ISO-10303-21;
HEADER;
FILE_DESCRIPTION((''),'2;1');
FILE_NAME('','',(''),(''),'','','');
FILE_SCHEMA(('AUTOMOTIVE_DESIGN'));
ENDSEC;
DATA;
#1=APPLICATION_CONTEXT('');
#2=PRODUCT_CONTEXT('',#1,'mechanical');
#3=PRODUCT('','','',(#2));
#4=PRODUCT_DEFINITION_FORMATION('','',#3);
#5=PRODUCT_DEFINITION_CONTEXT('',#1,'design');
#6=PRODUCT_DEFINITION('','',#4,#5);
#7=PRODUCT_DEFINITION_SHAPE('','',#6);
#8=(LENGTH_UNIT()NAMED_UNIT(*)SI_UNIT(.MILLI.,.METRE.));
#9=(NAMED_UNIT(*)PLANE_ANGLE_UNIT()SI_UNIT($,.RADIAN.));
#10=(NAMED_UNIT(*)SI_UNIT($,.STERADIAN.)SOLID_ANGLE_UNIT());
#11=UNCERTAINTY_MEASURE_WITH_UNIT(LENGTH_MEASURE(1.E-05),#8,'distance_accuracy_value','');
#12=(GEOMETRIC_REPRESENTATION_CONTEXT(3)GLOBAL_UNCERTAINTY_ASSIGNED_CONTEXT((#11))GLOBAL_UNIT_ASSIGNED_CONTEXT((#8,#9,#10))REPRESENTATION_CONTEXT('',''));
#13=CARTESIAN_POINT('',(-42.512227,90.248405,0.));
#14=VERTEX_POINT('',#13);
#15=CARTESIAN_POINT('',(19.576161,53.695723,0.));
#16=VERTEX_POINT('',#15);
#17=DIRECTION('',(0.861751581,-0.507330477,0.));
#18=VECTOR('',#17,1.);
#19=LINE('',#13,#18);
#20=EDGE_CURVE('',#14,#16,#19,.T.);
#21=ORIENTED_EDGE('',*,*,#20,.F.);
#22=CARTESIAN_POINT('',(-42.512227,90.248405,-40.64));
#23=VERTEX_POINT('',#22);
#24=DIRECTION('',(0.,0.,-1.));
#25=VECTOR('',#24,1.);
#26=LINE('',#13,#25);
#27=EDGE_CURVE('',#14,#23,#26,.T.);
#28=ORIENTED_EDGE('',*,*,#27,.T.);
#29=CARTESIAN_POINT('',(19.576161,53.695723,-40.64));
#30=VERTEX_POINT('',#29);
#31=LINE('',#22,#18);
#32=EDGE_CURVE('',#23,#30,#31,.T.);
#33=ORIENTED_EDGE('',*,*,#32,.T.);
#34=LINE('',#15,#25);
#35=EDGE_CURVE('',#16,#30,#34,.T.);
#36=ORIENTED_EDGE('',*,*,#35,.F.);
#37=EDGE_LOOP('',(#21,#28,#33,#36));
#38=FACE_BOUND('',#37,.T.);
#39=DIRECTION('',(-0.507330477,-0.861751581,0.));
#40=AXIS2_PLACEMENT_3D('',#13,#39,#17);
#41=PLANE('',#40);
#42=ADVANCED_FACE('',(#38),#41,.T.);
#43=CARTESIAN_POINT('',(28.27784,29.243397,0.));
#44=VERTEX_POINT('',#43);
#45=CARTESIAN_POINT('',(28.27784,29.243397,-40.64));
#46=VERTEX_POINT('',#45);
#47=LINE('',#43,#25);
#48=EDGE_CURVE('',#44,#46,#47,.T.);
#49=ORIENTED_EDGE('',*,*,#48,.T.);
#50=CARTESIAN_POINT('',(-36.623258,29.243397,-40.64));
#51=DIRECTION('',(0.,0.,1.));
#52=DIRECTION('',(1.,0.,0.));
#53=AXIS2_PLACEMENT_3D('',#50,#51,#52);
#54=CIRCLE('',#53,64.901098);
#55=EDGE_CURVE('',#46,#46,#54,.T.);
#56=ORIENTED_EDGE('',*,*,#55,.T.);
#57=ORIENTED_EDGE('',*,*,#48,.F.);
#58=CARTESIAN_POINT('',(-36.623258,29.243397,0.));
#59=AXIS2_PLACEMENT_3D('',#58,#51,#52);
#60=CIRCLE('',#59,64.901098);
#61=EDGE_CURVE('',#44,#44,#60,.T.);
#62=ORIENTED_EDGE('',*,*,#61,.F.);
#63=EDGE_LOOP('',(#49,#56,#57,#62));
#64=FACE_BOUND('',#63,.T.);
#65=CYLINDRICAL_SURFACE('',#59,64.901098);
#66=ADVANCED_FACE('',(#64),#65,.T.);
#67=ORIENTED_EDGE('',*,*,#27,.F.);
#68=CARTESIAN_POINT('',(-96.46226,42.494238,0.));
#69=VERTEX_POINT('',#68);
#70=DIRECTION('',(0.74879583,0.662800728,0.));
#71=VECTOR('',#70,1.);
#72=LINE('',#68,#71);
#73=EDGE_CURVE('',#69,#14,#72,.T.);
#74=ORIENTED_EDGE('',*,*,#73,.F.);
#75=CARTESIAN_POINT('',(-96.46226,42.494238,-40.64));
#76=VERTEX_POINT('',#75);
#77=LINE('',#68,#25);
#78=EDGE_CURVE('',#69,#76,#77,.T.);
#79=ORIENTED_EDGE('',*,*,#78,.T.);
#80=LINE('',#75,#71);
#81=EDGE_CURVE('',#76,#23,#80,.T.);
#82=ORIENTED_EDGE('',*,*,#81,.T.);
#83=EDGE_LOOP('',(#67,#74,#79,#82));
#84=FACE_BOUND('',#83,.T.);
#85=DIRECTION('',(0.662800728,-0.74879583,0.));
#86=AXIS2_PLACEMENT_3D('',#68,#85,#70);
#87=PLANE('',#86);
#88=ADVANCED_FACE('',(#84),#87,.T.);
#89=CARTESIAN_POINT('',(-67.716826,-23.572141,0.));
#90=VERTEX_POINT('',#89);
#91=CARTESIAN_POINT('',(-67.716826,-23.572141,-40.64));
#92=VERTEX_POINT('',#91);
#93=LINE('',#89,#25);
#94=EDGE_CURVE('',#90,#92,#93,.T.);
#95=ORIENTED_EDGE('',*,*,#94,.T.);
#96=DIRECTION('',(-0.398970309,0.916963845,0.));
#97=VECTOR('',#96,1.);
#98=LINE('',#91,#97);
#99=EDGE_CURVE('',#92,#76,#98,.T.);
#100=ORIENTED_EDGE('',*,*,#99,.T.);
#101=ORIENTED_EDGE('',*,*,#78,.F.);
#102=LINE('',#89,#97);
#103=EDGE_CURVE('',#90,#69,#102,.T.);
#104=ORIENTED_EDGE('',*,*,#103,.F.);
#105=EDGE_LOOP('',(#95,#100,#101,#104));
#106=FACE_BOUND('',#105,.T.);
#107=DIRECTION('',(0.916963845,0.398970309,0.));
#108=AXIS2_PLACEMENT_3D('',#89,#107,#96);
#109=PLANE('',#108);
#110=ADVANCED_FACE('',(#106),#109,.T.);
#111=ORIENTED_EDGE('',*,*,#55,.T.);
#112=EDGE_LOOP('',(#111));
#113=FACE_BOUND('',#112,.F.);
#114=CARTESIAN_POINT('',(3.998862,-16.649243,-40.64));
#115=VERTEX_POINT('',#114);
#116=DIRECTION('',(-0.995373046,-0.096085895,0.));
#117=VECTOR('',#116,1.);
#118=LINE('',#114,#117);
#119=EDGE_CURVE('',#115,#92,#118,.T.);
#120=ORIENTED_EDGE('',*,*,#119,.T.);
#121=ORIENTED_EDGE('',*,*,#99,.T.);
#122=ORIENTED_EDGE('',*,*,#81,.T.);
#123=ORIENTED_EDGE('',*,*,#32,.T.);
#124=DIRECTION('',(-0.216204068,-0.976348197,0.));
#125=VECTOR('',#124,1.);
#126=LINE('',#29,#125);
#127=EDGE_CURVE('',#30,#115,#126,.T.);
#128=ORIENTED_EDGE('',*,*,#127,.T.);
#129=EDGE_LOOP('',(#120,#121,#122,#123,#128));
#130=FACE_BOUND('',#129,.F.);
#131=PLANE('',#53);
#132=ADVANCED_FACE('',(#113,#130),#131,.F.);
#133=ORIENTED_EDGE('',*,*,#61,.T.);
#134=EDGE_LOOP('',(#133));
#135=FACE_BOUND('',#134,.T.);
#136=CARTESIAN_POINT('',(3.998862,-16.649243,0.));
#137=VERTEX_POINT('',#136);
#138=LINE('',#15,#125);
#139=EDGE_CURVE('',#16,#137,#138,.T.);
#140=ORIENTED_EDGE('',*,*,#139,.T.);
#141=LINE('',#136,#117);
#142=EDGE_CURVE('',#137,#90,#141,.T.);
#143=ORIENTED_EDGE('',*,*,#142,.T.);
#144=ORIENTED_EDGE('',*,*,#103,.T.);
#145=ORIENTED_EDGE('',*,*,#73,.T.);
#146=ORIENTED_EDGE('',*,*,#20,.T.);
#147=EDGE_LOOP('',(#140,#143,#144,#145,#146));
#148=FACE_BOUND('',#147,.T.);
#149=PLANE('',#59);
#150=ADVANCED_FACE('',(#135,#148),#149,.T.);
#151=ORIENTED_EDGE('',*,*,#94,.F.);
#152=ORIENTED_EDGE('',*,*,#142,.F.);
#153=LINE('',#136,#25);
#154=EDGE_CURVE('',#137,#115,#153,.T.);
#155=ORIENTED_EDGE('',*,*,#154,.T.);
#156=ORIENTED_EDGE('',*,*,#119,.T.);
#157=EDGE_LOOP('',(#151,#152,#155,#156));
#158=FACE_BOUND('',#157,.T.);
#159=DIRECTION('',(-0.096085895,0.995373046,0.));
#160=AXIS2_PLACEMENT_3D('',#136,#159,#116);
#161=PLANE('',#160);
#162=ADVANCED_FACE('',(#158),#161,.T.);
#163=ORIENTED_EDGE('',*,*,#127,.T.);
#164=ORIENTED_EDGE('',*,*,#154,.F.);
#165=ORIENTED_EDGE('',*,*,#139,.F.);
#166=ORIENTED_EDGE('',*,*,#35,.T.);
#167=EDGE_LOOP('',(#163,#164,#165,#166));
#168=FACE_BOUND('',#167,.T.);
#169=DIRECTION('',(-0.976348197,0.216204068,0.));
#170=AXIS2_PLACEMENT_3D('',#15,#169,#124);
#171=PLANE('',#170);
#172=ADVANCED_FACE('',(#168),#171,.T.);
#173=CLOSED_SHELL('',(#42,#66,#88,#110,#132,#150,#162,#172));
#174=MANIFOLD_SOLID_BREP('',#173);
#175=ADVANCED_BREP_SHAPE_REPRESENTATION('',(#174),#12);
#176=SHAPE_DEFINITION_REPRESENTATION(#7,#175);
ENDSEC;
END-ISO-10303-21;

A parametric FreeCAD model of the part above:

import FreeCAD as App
import Part
import Sketcher
Q = App.Units.Quantity


def add_polygon(sketch, points):
    """Adds a closed chain of lines whose ends are joined by coincident constraints."""
    first, n = sketch.GeometryCount, len(points)
    for a, b in zip(points, points[1:] + points[:1]):
        sketch.addGeometry(Part.LineSegment(App.Vector(*a, 0), App.Vector(*b, 0)), False)
    for i in range(n):
        sketch.addConstraint(Sketcher.Constraint("Coincident", first + i, 2, first + (i + 1) % n, 1))

doc = App.newDocument("Part")
body = doc.addObject("PartDesign::Body", "Body")

sketch1 = body.newObject("Sketcher::SketchObject", "Sketch")
sketch1.AttachmentSupport = (doc.getObject("XY_Plane"), [""])
sketch1.MapMode = "FlatFace"
sketch1.addGeometry(Part.Circle(App.Vector(-37, 29, 0), App.Vector(0, 0, 1), 65), False)
add_polygon(sketch1, [(4, -17), (-68, -24), (-96, 42), (-43, 90), (20, 54)])
sketch1.addConstraint([
    Sketcher.Constraint("Equal", 1, 2),
    Sketcher.Constraint("Equal", 2, 3),
    Sketcher.Constraint("Equal", 3, 4),
    Sketcher.Constraint("Equal", 4, 5),
    Sketcher.Constraint("Diameter", 0, 129.802196),
    Sketcher.Constraint("DistanceX", 1, 2, 3, 2, 25.204599),
    Sketcher.Constraint("DistanceX", 5, 2, 4, 2, 15.577299),
    Sketcher.Constraint("DistanceY", 1, 2, -1, 1, 23.572141),
    Sketcher.Constraint("DistanceX", 2, 2, -1, 1, 96.46226),
    Sketcher.Constraint("DistanceY", -1, 1, 2, 2, 42.494238),
    Sketcher.Constraint("DistanceX", -1, 1, 4, 2, 19.576161),
    Sketcher.Constraint("DistanceY", 1, 2, 0, 3, 52.815538),
    Sketcher.Constraint("DistanceX", 3, 2, 0, 3, 5.888969),
])
pad1 = body.newObject("PartDesign::Pad", "Pad")
pad1.Profile = sketch1
pad1.Length = Q("1.6 in")
pad1.Reversed = True

doc.recompute()
